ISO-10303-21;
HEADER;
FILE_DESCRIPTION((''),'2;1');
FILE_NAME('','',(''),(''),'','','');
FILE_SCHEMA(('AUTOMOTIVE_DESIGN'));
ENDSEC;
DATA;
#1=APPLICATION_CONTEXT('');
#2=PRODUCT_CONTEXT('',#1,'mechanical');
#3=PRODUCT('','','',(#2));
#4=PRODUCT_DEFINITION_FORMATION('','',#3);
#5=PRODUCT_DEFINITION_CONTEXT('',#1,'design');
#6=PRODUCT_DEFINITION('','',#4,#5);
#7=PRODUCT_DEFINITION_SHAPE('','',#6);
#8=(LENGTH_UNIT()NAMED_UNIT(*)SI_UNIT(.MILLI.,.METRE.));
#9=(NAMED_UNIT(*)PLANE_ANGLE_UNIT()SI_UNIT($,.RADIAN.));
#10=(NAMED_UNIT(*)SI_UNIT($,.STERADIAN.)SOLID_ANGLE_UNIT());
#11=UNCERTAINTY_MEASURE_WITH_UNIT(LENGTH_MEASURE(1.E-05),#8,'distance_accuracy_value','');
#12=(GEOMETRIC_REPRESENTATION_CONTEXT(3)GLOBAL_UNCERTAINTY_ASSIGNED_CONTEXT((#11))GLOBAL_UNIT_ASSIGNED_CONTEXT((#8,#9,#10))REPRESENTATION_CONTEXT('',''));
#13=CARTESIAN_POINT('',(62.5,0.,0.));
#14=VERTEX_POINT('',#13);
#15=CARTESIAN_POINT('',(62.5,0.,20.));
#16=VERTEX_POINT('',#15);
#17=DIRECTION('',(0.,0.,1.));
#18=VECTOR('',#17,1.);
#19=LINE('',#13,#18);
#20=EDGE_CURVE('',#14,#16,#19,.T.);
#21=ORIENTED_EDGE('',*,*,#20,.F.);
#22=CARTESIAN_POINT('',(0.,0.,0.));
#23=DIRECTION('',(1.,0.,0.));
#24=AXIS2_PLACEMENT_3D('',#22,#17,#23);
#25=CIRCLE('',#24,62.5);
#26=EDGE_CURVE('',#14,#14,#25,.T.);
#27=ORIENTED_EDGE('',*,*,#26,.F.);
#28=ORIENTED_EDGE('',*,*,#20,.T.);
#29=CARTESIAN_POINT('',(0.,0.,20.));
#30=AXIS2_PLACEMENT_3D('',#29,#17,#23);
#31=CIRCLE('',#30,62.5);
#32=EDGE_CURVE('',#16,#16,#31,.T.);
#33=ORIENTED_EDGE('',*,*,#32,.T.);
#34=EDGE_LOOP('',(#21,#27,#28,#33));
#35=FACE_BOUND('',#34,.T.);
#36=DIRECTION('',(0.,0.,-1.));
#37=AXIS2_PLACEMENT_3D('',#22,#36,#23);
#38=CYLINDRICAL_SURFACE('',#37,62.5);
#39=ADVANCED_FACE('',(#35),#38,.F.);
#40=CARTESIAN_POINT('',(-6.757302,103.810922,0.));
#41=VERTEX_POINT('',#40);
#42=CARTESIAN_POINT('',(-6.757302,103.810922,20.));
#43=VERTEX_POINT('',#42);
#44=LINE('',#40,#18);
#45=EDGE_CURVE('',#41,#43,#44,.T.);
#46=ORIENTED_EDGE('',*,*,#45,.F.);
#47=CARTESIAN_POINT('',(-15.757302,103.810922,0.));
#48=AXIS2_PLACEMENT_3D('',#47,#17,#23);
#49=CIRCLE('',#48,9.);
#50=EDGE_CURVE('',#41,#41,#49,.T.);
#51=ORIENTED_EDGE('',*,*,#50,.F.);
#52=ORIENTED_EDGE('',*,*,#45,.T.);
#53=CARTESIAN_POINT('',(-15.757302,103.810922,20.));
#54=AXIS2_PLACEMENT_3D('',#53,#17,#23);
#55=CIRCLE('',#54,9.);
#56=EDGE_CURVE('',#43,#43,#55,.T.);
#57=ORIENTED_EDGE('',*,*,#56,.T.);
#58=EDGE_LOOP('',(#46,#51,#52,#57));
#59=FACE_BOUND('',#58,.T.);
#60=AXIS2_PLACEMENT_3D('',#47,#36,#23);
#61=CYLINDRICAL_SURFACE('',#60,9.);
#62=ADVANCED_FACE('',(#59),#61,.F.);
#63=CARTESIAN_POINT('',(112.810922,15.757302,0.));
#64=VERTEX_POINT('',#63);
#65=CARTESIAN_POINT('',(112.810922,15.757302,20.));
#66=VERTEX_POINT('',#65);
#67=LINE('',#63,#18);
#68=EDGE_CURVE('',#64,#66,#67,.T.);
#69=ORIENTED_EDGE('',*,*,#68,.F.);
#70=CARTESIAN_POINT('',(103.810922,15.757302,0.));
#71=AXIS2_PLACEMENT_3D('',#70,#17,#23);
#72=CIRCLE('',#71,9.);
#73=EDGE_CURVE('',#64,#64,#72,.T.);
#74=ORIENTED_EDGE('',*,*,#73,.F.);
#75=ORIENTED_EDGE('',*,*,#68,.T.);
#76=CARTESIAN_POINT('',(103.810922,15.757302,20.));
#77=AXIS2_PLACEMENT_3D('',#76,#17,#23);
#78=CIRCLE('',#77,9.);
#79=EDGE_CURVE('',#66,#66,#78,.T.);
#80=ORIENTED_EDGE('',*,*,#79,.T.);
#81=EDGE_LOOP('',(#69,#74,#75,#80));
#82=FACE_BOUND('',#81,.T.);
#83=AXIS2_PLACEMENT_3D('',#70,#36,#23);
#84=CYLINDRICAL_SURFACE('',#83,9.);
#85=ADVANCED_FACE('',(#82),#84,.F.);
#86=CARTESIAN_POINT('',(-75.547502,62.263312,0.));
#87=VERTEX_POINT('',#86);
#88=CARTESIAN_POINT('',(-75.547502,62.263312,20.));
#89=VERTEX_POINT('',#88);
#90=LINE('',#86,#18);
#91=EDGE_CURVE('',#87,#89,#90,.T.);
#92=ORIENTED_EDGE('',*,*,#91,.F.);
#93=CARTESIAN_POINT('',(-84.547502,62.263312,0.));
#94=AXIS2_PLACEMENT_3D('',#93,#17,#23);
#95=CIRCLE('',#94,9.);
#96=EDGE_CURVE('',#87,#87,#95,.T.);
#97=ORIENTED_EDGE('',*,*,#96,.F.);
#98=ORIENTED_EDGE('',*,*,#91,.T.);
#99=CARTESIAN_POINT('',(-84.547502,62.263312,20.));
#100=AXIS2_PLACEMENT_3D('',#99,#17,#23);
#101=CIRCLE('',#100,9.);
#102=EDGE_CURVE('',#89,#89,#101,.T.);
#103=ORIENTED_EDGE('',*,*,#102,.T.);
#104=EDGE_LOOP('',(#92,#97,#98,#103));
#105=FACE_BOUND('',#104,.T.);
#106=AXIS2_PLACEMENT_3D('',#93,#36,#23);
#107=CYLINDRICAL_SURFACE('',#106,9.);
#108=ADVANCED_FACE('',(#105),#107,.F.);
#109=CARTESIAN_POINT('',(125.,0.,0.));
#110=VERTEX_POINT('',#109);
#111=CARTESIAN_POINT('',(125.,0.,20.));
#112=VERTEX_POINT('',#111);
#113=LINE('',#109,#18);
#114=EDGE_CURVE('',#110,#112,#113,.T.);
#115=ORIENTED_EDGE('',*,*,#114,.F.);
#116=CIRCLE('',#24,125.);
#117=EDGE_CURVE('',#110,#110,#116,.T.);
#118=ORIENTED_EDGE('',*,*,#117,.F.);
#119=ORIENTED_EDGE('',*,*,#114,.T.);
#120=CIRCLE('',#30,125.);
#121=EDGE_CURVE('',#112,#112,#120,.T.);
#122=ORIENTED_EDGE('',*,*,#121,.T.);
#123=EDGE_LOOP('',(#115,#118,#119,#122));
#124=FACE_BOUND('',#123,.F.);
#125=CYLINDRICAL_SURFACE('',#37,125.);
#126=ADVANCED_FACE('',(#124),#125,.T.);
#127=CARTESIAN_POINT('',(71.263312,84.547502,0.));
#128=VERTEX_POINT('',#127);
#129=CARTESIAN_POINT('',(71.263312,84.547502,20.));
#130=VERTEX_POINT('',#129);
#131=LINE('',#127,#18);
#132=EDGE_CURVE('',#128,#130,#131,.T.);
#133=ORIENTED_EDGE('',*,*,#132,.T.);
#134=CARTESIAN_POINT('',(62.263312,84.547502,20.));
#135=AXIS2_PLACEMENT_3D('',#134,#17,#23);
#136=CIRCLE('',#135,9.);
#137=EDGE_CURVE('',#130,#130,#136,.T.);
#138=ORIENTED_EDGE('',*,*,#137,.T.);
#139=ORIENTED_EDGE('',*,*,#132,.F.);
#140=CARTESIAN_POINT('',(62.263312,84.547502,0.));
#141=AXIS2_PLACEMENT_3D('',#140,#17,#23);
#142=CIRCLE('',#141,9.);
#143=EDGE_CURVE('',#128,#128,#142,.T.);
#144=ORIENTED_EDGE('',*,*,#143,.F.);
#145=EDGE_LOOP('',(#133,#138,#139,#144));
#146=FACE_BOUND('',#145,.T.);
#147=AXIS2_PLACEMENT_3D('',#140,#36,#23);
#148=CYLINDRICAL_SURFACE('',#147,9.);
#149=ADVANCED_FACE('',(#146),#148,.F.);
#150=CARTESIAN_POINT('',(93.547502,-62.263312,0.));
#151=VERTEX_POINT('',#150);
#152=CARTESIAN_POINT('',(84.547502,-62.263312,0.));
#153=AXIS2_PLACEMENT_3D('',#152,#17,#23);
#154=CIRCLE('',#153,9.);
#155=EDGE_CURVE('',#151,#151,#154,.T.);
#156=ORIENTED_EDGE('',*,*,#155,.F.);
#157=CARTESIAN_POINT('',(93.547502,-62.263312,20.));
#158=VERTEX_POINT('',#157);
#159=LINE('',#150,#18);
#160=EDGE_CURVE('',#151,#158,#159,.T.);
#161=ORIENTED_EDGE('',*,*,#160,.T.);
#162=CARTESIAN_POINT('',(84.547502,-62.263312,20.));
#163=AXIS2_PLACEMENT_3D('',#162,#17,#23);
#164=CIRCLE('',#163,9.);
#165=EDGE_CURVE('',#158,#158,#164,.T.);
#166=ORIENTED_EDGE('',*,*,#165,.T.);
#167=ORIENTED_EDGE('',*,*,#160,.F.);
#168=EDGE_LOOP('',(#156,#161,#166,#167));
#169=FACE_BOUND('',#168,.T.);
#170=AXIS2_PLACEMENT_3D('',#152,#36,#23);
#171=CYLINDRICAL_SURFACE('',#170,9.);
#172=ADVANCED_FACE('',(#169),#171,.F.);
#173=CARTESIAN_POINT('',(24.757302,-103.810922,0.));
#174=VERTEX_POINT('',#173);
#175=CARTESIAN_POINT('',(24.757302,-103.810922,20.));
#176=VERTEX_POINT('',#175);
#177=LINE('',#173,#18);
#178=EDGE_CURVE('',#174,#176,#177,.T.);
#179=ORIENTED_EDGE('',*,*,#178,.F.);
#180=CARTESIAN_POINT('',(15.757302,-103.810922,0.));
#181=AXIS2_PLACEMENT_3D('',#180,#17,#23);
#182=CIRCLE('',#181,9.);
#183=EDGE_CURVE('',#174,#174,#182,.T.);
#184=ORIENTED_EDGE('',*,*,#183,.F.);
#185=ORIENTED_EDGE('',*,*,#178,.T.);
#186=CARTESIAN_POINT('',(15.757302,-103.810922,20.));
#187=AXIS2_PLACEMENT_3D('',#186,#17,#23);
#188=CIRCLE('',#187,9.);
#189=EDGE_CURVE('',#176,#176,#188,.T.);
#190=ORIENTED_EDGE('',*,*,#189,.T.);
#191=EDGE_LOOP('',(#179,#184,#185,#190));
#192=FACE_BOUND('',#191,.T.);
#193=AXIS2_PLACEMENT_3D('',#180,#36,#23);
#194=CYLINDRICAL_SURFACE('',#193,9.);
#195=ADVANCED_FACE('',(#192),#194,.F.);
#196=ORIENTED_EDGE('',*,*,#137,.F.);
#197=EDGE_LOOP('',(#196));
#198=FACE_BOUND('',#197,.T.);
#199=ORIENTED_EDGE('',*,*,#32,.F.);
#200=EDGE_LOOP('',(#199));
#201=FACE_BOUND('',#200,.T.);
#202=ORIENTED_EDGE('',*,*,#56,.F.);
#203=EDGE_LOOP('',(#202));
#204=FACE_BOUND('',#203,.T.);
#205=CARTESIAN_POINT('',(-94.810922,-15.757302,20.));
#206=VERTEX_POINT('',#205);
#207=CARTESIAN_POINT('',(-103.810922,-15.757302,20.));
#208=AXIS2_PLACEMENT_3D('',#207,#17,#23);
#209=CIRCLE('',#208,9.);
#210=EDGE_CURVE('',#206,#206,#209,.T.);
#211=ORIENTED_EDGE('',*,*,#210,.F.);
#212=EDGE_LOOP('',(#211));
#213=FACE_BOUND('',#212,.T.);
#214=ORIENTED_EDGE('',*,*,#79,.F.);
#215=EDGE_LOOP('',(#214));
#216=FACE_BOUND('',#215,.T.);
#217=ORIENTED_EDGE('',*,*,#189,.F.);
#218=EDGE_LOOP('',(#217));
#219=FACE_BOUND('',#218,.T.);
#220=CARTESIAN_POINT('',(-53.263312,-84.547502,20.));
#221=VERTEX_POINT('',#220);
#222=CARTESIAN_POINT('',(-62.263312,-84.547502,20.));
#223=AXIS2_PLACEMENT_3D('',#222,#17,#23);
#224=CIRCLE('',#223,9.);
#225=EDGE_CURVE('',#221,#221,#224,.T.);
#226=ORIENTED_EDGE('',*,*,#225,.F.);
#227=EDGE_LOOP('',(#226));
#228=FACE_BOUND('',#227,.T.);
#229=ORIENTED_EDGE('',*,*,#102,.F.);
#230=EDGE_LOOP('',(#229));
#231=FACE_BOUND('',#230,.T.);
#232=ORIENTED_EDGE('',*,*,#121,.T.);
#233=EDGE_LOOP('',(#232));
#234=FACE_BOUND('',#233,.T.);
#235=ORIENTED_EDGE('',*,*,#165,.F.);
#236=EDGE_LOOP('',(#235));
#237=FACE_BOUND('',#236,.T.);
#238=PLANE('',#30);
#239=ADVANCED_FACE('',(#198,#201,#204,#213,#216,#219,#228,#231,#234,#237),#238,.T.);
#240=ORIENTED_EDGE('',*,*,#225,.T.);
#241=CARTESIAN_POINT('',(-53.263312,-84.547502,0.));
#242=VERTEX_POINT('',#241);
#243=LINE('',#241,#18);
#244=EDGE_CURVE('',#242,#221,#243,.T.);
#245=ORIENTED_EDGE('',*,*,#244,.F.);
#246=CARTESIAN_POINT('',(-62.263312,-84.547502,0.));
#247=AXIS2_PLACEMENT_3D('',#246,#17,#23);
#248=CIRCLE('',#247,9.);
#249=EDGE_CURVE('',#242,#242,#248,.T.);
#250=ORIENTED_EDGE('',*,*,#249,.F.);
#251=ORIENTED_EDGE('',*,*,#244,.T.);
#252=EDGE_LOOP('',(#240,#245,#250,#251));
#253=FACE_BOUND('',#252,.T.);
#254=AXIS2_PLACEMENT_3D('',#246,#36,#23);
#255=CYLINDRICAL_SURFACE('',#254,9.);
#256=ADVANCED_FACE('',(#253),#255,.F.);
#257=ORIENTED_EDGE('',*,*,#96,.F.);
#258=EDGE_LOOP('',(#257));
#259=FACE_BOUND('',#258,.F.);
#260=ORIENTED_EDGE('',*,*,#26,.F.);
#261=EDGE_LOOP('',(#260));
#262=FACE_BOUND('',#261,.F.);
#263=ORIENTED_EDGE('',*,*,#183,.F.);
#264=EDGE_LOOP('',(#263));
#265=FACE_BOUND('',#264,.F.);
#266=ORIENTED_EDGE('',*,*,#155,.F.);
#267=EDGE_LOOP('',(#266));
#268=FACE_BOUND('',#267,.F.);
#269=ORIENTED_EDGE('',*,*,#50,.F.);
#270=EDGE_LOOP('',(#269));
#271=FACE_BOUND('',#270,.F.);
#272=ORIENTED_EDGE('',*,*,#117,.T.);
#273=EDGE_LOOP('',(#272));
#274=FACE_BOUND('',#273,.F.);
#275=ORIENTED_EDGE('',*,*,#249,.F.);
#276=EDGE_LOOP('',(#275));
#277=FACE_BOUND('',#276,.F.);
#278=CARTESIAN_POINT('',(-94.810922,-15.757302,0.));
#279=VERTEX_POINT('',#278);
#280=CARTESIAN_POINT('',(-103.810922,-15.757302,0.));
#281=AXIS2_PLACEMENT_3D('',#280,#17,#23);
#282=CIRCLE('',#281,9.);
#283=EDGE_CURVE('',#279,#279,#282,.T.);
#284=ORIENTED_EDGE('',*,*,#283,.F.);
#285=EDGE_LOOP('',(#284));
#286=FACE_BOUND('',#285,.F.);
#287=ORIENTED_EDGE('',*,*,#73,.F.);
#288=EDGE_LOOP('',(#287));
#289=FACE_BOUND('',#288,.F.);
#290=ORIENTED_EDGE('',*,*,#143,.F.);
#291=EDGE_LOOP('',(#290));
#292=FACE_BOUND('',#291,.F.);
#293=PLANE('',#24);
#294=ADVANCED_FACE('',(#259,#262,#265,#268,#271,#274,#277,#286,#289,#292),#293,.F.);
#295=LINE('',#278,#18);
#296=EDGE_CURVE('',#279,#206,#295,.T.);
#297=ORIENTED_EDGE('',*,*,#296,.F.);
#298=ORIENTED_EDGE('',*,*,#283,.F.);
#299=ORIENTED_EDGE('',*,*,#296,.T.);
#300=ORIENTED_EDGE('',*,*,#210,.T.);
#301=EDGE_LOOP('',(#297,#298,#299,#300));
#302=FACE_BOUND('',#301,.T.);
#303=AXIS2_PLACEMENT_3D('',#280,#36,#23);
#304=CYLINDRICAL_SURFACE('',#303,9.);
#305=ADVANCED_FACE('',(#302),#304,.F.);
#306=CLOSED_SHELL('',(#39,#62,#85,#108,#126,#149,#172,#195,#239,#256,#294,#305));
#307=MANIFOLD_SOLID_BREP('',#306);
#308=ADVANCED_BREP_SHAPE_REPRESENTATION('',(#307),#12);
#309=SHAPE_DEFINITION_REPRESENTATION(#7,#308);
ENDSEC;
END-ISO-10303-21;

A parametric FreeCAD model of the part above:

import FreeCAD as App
import Part
import Sketcher
from FreeCAD import Vector

doc = App.newDocument("Part")
params = doc.addObject("Spreadsheet::Sheet", "Params")
for row, (alias, value) in enumerate([
    ("sketch1_diameter", "250 mm"),
    ("sketch1_diameter2", "18 mm"),
    ("sketch1_diameter3", "125 mm"),
    ("pad1_length", "20 mm"),
], start=1):
    params.set(f"A{row}", alias)
    params.set(f"B{row}", "=" + value)
    params.setAlias(f"B{row}", alias)

body = doc.addObject("PartDesign::Body", "Body")

# Sketch on XY plane
sketch1 = body.newObject("Sketcher::SketchObject", "Sketch")
sketch1.AttachmentSupport = (doc.getObject("XY_Plane"), [""])
sketch1.MapMode = "FlatFace"
sketch1.addGeometry([
    Part.Circle(Vector(0, 0, 0), Vector(0, 0, 1), 125),  # 0
    Part.Circle(Vector(-62.263312, -84.547502, 0), Vector(0, 0, 1), 9),  # 1
    Part.Circle(Vector(-103.810922, -15.757302, 0), Vector(0, 0, 1), 9),  # 2
    Part.Circle(Vector(15.757302, -103.810922, 0), Vector(0, 0, 1), 9),  # 3
    Part.Circle(Vector(84.547502, -62.263312, 0), Vector(0, 0, 1), 9),  # 4
    Part.Circle(Vector(-84.547502, 62.263312, 0), Vector(0, 0, 1), 9),  # 5
    Part.Circle(Vector(-15.757302, 103.810922, 0), Vector(0, 0, 1), 9),  # 6
    Part.Circle(Vector(0, 0, 0), Vector(0, 0, 1), 62.5),  # 7
    Part.Circle(Vector(103.810922, 15.757302, 0), Vector(0, 0, 1), 9),  # 8
    Part.Circle(Vector(62.263312, 84.547502, 0), Vector(0, 0, 1), 9),  # 9
], False)
sketch1.addConstraint([
    Sketcher.Constraint("Coincident", 0, 3, -1, 1),
    Sketcher.Constraint("Coincident", 7, 3, -1, 1),
    Sketcher.Constraint("Equal", 1, 2),
    Sketcher.Constraint("Equal", 2, 3),
    Sketcher.Constraint("Equal", 3, 4),
    Sketcher.Constraint("Equal", 4, 5),
    Sketcher.Constraint("Equal", 5, 6),
    Sketcher.Constraint("Equal", 6, 8),
    Sketcher.Constraint("Equal", 8, 9),
    Sketcher.Constraint("Symmetric", 4, 3, 5, 3, -1, 1),
    Sketcher.Constraint("Symmetric", 3, 3, 6, 3, -1, 1),
    Sketcher.Constraint("Symmetric", 2, 3, 8, 3, -1, 1),
    Sketcher.Constraint("Symmetric", 1, 3, 9, 3, -1, 1),
    Sketcher.Constraint("Diameter", 0, 250.0),
    Sketcher.Constraint("Diameter", 1, 18.0),
    Sketcher.Constraint("Diameter", 7, 125.0),
    Sketcher.Constraint("DistanceY", 1, 3, -1, 1, 84.547502),
    Sketcher.Constraint("DistanceY", 2, 3, -1, 1, 15.757302),
    Sketcher.Constraint("DistanceX", -1, 1, 3, 3, 15.757302),
    Sketcher.Constraint("DistanceX", -1, 1, 4, 3, 84.547502),
    Sketcher.Constraint("DistanceX", 2, 3, 1, 3, 41.54761),
    Sketcher.Constraint("DistanceY", 3, 3, 1, 3, 19.26342),
    Sketcher.Constraint("DistanceY", 3, 3, 4, 3, 41.54761),
    Sketcher.Constraint("DistanceX", 2, 3, 5, 3, 19.26342),
])
sketch1.setExpression("Constraints[13]", "Params.sketch1_diameter")
sketch1.setExpression("Constraints[14]", "Params.sketch1_diameter2")
sketch1.setExpression("Constraints[15]", "Params.sketch1_diameter3")
pad1 = body.newObject("PartDesign::Pad", "Pad")
pad1.Profile = sketch1
pad1.setExpression("Length", "Params.pad1_length")

doc.recompute()
